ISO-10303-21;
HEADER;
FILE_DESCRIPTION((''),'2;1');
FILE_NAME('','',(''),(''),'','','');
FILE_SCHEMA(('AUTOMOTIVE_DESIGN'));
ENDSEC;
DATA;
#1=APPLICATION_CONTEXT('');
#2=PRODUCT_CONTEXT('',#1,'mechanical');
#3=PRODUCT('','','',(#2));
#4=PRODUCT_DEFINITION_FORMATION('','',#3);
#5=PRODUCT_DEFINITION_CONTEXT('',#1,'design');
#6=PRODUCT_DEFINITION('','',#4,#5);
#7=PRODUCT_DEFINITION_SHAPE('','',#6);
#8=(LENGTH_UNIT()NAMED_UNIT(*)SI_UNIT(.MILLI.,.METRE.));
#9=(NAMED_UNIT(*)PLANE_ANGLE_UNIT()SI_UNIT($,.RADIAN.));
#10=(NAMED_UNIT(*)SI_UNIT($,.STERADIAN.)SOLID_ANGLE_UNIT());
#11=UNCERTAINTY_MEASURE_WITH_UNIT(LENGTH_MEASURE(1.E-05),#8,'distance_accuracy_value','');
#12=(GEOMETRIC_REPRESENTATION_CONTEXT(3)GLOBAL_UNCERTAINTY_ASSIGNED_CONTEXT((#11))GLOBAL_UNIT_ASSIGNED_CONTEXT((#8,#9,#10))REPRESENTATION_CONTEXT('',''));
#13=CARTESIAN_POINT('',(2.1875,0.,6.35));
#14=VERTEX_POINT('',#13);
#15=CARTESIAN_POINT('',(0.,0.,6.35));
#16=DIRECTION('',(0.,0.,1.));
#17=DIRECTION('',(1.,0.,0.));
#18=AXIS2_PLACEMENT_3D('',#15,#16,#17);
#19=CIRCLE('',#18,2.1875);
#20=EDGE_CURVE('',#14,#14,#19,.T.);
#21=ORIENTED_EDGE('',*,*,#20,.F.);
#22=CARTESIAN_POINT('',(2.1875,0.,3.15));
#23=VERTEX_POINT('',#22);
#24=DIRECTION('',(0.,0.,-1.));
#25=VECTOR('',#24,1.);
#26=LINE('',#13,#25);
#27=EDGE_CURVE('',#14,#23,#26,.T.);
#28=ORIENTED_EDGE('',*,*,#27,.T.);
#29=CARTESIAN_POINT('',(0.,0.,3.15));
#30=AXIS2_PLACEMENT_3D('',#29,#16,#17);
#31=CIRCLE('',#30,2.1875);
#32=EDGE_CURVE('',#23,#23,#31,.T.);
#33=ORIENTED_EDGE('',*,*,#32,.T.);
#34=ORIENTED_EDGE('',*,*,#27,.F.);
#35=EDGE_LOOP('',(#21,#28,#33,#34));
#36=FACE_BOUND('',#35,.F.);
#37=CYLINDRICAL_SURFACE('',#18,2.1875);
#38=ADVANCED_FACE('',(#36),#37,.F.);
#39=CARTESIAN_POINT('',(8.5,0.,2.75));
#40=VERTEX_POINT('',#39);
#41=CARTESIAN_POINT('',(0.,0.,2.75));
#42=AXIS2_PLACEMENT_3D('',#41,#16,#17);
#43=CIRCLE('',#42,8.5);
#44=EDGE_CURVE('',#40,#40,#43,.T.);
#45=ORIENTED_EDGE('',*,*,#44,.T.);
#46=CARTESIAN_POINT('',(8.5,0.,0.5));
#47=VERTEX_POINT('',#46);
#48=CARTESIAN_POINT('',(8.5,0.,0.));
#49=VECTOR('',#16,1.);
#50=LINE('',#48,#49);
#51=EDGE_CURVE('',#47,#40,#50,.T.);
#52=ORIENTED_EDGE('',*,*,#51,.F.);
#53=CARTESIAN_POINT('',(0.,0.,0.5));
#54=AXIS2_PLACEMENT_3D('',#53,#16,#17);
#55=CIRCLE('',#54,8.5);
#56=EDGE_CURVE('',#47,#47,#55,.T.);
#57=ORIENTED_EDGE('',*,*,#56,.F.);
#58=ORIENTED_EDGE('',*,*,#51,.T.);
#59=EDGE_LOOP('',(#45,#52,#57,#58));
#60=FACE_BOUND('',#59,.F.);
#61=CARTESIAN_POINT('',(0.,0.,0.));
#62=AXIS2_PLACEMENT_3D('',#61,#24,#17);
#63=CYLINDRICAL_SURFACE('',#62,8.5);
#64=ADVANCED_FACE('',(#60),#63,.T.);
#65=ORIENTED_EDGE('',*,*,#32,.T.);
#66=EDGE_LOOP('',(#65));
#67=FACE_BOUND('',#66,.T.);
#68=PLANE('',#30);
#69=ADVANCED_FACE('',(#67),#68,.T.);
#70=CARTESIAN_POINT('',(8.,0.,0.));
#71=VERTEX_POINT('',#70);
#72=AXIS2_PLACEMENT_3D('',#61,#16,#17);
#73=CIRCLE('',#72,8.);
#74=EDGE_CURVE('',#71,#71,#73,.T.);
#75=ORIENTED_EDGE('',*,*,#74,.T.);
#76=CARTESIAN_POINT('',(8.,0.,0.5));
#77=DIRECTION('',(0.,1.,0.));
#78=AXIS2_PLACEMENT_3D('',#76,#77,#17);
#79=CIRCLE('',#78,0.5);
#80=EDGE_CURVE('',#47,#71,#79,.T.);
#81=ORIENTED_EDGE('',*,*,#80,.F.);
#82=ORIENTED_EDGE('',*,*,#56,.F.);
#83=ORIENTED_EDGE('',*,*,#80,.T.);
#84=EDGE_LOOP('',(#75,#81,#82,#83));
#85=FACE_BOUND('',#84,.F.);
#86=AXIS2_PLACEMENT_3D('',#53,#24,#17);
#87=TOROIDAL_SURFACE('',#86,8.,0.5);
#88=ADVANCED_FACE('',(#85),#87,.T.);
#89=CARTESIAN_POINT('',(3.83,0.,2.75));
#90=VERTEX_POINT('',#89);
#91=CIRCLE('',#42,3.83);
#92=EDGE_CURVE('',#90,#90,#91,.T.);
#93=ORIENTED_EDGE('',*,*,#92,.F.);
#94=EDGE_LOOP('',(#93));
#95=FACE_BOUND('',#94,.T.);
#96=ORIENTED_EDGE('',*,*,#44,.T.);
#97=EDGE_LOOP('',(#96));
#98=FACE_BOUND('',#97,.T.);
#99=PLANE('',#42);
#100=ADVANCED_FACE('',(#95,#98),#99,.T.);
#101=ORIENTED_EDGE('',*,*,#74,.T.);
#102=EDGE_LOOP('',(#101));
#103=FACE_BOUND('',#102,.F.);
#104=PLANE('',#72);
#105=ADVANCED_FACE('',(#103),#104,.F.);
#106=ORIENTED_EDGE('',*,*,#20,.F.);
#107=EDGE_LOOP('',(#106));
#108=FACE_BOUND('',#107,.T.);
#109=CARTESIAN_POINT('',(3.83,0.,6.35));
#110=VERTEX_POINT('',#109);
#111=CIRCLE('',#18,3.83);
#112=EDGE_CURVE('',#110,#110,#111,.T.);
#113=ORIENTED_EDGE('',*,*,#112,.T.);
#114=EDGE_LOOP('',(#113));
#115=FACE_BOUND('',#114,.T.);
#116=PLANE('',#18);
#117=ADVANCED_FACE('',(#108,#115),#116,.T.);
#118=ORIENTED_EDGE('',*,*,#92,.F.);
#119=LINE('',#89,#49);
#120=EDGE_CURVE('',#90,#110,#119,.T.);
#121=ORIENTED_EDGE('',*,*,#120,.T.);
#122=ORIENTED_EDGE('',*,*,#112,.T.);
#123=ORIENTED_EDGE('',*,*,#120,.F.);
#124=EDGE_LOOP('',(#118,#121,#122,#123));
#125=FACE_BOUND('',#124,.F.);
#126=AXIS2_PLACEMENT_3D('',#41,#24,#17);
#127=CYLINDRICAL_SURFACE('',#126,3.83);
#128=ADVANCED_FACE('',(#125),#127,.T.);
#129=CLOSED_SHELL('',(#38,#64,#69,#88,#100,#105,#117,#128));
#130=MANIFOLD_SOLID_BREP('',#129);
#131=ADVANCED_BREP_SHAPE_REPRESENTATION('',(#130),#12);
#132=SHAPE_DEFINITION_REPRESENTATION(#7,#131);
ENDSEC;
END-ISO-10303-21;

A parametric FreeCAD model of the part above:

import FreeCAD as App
import Part
import Sketcher
Q = App.Units.Quantity


def edges_at(feature, points):
    """Names of the edges that pass closest to the given points."""
    edges = feature.Shape.Edges
    near = lambda p: min(range(len(edges)), key=lambda i: edges[i].distToShape(Part.Vertex(*p))[0])
    return sorted({f"Edge{near(p) + 1}" for p in points})

doc = App.newDocument("Part")
body = doc.addObject("PartDesign::Body", "Body")

# Sketch on XY plane
sketch1 = doc.addObject("Sketcher::SketchObject", "Sketch")
body.addObject(sketch1)
sketch1.AttachmentSupport = (doc.XY_Plane, [""])
sketch1.MapMode = "FlatFace"
sketch1.addGeometry(Part.Circle(App.Vector(0, 0, 0), App.Vector(0, 0, 1), 8), False)
sketch1.addConstraint([
    Sketcher.Constraint("Coincident", 0, 3, -1, 1),
    Sketcher.Constraint("Diameter", 0, Q("17 mm")),
])
pad1 = doc.addObject("PartDesign::Pad", "Pad")
body.addObject(pad1)
pad1.Profile = sketch1
pad1.Length = 2.75

# Sketch on XY plane
sketch2 = doc.addObject("Sketcher::SketchObject", "Sketch001")
body.addObject(sketch2)
sketch2.AttachmentSupport = (doc.XY_Plane, [""])
sketch2.MapMode = "FlatFace"
sketch2.AttachmentOffset = App.Placement(App.Vector(0, 0, 2.75), App.Rotation())
sketch2.addGeometry(Part.Circle(App.Vector(0, 0, 0), App.Vector(0, 0, 1), 3.8), False)
sketch2.addConstraint([
    Sketcher.Constraint("Coincident", 0, 3, -1, 1),
    Sketcher.Constraint("Diameter", 0, Q("7.66 mm")),
])
pad2 = doc.addObject("PartDesign::Pad", "Pad001")
body.addObject(pad2)
pad2.Profile = sketch2
pad2.Length = 3.6

# Sketch on XY plane
sketch3 = doc.addObject("Sketcher::SketchObject", "Sketch002")
body.addObject(sketch3)
sketch3.AttachmentSupport = (doc.XY_Plane, [""])
sketch3.MapMode = "FlatFace"
sketch3.AttachmentOffset = App.Placement(App.Vector(0, 0, 6.35), App.Rotation())
sketch3.addGeometry(Part.Circle(App.Vector(0, 0, 0), App.Vector(0, 0, 1), 2.2), False)
sketch3.addConstraint([
    Sketcher.Constraint("Coincident", 0, 3, -1, 1),
    Sketcher.Constraint("Diameter", 0, Q("4.375 mm")),
])
pocket1 = doc.addObject("PartDesign::Pocket", "Pocket")
body.addObject(pocket1)
pocket1.Profile = sketch3
pocket1.Length = 3.2
doc.recompute()

fillet = doc.addObject("PartDesign::Fillet", "Fillet")
body.addObject(fillet)
fillet.Base = (pocket1, edges_at(pocket1, [(-8.5, 0, 0)]))
fillet.Radius = 0.5

doc.recompute()
